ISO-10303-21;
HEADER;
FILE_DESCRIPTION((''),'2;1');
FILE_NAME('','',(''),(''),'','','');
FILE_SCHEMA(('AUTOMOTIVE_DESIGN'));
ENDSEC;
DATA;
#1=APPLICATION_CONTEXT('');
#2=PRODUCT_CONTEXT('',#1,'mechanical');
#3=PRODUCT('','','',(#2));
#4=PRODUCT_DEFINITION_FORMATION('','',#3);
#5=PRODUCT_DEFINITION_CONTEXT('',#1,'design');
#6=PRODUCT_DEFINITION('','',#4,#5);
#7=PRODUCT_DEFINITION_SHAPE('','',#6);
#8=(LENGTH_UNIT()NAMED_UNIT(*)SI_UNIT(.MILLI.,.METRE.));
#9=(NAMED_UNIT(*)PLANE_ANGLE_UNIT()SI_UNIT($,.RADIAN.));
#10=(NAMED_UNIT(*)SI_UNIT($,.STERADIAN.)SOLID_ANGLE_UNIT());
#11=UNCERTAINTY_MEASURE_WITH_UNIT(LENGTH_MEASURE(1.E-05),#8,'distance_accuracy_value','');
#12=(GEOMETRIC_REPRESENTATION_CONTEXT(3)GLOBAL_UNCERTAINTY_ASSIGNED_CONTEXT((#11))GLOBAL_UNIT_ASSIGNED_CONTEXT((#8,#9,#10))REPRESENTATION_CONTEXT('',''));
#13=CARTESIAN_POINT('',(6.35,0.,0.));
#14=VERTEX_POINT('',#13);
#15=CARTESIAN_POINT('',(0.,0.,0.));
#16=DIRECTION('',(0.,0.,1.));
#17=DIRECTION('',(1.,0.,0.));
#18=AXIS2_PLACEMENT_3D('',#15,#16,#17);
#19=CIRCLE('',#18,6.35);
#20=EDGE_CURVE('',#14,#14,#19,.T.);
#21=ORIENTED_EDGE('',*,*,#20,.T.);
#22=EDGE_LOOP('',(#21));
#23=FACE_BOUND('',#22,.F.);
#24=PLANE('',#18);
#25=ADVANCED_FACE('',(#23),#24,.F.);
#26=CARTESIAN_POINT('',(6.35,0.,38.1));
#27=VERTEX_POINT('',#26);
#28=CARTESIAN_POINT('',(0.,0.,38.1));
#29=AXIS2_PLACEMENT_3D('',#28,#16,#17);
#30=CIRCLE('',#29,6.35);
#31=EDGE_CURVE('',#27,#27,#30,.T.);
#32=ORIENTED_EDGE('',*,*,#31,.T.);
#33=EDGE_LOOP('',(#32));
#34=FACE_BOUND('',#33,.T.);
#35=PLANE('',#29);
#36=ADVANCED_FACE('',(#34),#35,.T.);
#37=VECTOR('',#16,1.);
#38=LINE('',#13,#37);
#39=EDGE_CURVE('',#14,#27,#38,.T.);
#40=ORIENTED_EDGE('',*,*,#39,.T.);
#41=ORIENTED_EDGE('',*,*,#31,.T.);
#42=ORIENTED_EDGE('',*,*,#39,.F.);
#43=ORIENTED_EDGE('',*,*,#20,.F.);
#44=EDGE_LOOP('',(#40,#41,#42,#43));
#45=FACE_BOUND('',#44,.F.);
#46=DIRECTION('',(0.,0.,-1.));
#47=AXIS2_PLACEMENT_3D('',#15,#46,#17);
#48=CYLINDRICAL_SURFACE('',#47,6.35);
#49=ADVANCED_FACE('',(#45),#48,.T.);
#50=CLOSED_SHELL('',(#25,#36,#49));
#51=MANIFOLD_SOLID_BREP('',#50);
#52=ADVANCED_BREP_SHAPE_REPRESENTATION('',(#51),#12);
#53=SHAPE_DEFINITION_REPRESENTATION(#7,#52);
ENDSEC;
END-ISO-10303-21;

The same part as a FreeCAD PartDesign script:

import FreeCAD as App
import Part
import Sketcher
from FreeCAD import Vector
Q = App.Units.Quantity

doc = App.newDocument("Part")
body = doc.addObject("PartDesign::Body", "Body")

sketch1 = body.newObject("Sketcher::SketchObject", "Sketch")
sketch1.AttachmentSupport = (doc.getObject("XY_Plane"), [""])
sketch1.MapMode = "FlatFace"
sketch1.addGeometry(Part.Circle(Vector(0, 0, 0), Vector(0, 0, 1), 6.35), False)
sketch1.addConstraint(Sketcher.Constraint("Coincident", 0, 3, -1, 1))
sketch1.addConstraint(Sketcher.Constraint("Diameter", 0, Q("0.5 in")))
pad1 = body.newObject("PartDesign::Pad", "Pad")
pad1.Profile = sketch1
pad1.Length = Q("1.5 in")

doc.recompute()
